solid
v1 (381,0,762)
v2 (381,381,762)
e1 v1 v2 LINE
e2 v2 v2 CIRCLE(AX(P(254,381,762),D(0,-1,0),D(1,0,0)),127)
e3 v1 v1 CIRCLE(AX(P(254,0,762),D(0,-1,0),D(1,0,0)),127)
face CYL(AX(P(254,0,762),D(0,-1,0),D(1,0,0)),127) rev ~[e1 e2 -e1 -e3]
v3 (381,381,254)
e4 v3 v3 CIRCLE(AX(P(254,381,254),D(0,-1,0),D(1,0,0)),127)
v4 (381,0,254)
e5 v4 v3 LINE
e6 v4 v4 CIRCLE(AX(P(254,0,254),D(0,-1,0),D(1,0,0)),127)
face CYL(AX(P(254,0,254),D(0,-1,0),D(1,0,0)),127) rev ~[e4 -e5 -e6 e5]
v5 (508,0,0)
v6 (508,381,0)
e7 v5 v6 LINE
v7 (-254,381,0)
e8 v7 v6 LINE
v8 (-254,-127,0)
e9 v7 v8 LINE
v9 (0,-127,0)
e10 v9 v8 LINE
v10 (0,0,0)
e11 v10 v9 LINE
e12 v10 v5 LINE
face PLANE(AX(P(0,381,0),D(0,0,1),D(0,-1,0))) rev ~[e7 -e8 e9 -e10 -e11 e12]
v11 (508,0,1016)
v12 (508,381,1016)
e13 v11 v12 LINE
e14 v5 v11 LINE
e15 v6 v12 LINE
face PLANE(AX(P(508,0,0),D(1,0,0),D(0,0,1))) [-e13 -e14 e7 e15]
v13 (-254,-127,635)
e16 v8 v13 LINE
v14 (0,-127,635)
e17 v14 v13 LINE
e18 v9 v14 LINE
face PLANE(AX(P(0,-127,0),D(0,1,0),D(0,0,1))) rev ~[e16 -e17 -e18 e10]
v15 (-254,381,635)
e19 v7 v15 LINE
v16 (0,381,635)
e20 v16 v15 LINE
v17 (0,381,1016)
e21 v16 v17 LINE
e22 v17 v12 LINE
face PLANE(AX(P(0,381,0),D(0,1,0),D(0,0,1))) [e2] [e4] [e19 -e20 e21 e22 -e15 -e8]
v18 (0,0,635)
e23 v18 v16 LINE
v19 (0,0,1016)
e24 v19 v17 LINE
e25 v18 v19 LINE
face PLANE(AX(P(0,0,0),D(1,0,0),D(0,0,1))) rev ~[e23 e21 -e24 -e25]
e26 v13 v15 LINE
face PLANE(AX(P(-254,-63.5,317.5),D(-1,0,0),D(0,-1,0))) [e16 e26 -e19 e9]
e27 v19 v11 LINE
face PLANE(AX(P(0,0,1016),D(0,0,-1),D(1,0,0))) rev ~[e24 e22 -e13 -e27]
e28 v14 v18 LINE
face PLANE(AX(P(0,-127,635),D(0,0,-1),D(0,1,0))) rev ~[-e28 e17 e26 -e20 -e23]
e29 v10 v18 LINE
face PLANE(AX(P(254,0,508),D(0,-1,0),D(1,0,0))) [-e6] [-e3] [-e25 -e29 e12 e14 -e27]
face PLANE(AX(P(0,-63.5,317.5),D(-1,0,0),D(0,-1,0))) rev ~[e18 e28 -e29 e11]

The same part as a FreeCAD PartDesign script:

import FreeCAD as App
import Part
import Sketcher
from FreeCAD import Vector
Q = App.Units.Quantity

doc = App.newDocument("Part")
body = doc.addObject("PartDesign::Body", "Body")

sketch1 = doc.addObject("Sketcher::SketchObject", "Sketch")
body.addObject(sketch1)
sketch1.AttachmentSupport = (doc.XZ_Plane, [""])
sketch1.MapMode = "FlatFace"
sketch1.addGeometry([
    Part.LineSegment(Vector(0, 1016, 0), Vector(0, 0, 0)),
    Part.LineSegment(Vector(0, 0, 0), Vector(508, 0, 0)),
    Part.LineSegment(Vector(508, 0, 0), Vector(508, 1016, 0)),
    Part.LineSegment(Vector(508, 1016, 0), Vector(0, 1016, 0)),
    Part.Circle(Vector(254, 254, 0), Vector(0, 0, 1), 127),
    Part.Circle(Vector(254, 762, 0), Vector(0, 0, 1), 127),
], False)
sketch1.addConstraint([
    Sketcher.Constraint("Coincident", 0, 2, 1, 1),
    Sketcher.Constraint("Coincident", 1, 2, 2, 1),
    Sketcher.Constraint("Coincident", 2, 2, 3, 1),
    Sketcher.Constraint("Coincident", 3, 2, 0, 1),
    Sketcher.Constraint("Vertical", 0),
    Sketcher.Constraint("Horizontal", 1),
    Sketcher.Constraint("Vertical", 2),
    Sketcher.Constraint("Horizontal", 3),
    Sketcher.Constraint("Coincident", 0, 2, -1, 1),
    Sketcher.Constraint("Equal", 4, 5),
    Sketcher.Constraint("Vertical", 4, 3, 5, 3),
    Sketcher.Constraint("Diameter", 4, Q("10 in")),
    Sketcher.Constraint("DistanceX", 1, 1, 1, 2, Q("20 in")),
    Sketcher.Constraint("DistanceY", 0, 2, 0, 1, Q("40 in")),
    Sketcher.Constraint("DistanceX", -1, 1, 4, 3, Q("10 in")),
    Sketcher.Constraint("DistanceY", -1, 1, 4, 3, Q("10 in")),
    Sketcher.Constraint("DistanceY", -1, 1, 5, 3, Q("30 in")),
])
pad1 = doc.addObject("PartDesign::Pad", "Pad")
body.addObject(pad1)
pad1.Profile = sketch1
pad1.Length = Q("15 in")
pad1.Reversed = True

sketch2 = doc.addObject("Sketcher::SketchObject", "Sketch001")
body.addObject(sketch2)
sketch2.AttachmentSupport = (doc.YZ_Plane, [""])
sketch2.MapMode = "FlatFace"
sketch2.addGeometry([
    Part.LineSegment(Vector(-127, 0, 0), Vector(-127, 635, 0)),
    Part.LineSegment(Vector(-127, 635, 0), Vector(381, 635, 0)),
    Part.LineSegment(Vector(381, 635, 0), Vector(381, 0, 0)),
    Part.LineSegment(Vector(381, 0, 0), Vector(-127, 0, 0)),
], False)
sketch2.addConstraint([
    Sketcher.Constraint("Coincident", 0, 2, 1, 1),
    Sketcher.Constraint("Coincident", 1, 2, 2, 1),
    Sketcher.Constraint("Coincident", 2, 2, 3, 1),
    Sketcher.Constraint("Coincident", 3, 2, 0, 1),
    Sketcher.Constraint("Vertical", 0),
    Sketcher.Constraint("Horizontal", 1),
    Sketcher.Constraint("Vertical", 2),
    Sketcher.Constraint("Horizontal", 3),
    Sketcher.Constraint("PointOnObject", 2, 2, -1),
    Sketcher.Constraint("DistanceX", 1, 1, 1, 2, Q("20 in")),
    Sketcher.Constraint("DistanceY", 0, 1, 0, 2, Q("25 in")),
    Sketcher.Constraint("DistanceX", 0, 2, -1, 1, Q("5 in")),
])
pad2 = doc.addObject("PartDesign::Pad", "Pad001")
body.addObject(pad2)
pad2.Profile = sketch2
pad2.Length = Q("10 in")
pad2.Reversed = True

doc.recompute()
